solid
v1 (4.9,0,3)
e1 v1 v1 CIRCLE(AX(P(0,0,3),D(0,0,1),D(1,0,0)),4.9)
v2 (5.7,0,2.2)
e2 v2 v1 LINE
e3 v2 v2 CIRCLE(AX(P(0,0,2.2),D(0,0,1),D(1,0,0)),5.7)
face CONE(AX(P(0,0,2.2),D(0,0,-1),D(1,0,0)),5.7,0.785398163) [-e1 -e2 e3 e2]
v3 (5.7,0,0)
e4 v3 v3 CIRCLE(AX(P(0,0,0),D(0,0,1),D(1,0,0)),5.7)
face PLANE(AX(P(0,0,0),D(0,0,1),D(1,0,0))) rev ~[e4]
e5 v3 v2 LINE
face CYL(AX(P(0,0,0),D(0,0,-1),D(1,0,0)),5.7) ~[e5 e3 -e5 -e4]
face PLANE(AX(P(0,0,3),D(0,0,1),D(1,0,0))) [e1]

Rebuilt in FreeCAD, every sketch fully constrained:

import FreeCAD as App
import Part
import Sketcher
from FreeCAD import Vector
Q = App.Units.Quantity


def edges_at(feature, points):
    """Names of the edges that pass closest to the given points."""
    edges = feature.Shape.Edges
    near = lambda p: min(range(len(edges)), key=lambda i: edges[i].distToShape(Part.Vertex(*p))[0])
    return sorted({f"Edge{near(p) + 1}" for p in points})

doc = App.newDocument("Part")
body = doc.addObject("PartDesign::Body", "Body")

sketch1 = doc.addObject("Sketcher::SketchObject", "Sketch")
body.addObject(sketch1)
sketch1.AttachmentSupport = (doc.XY_Plane, [""])
sketch1.MapMode = "FlatFace"
sketch1.addGeometry(Part.Circle(Vector(0, 0, 0), Vector(0, 0, 1), 6), False)
sketch1.addConstraint([
    Sketcher.Constraint("Coincident", 0, 3, -1, 1),
    Sketcher.Constraint("Diameter", 0, Q("11.4 mm")),
])
pad1 = doc.addObject("PartDesign::Pad", "Pad")
body.addObject(pad1)
pad1.Profile = sketch1
pad1.Length = 3
doc.recompute()

chamfer = doc.addObject("PartDesign::Chamfer", "Chamfer")
body.addObject(chamfer)
chamfer.Base = (pad1, edges_at(pad1, [(-5.7, 0, 3)]))
chamfer.Size = 0.8

doc.recompute()
